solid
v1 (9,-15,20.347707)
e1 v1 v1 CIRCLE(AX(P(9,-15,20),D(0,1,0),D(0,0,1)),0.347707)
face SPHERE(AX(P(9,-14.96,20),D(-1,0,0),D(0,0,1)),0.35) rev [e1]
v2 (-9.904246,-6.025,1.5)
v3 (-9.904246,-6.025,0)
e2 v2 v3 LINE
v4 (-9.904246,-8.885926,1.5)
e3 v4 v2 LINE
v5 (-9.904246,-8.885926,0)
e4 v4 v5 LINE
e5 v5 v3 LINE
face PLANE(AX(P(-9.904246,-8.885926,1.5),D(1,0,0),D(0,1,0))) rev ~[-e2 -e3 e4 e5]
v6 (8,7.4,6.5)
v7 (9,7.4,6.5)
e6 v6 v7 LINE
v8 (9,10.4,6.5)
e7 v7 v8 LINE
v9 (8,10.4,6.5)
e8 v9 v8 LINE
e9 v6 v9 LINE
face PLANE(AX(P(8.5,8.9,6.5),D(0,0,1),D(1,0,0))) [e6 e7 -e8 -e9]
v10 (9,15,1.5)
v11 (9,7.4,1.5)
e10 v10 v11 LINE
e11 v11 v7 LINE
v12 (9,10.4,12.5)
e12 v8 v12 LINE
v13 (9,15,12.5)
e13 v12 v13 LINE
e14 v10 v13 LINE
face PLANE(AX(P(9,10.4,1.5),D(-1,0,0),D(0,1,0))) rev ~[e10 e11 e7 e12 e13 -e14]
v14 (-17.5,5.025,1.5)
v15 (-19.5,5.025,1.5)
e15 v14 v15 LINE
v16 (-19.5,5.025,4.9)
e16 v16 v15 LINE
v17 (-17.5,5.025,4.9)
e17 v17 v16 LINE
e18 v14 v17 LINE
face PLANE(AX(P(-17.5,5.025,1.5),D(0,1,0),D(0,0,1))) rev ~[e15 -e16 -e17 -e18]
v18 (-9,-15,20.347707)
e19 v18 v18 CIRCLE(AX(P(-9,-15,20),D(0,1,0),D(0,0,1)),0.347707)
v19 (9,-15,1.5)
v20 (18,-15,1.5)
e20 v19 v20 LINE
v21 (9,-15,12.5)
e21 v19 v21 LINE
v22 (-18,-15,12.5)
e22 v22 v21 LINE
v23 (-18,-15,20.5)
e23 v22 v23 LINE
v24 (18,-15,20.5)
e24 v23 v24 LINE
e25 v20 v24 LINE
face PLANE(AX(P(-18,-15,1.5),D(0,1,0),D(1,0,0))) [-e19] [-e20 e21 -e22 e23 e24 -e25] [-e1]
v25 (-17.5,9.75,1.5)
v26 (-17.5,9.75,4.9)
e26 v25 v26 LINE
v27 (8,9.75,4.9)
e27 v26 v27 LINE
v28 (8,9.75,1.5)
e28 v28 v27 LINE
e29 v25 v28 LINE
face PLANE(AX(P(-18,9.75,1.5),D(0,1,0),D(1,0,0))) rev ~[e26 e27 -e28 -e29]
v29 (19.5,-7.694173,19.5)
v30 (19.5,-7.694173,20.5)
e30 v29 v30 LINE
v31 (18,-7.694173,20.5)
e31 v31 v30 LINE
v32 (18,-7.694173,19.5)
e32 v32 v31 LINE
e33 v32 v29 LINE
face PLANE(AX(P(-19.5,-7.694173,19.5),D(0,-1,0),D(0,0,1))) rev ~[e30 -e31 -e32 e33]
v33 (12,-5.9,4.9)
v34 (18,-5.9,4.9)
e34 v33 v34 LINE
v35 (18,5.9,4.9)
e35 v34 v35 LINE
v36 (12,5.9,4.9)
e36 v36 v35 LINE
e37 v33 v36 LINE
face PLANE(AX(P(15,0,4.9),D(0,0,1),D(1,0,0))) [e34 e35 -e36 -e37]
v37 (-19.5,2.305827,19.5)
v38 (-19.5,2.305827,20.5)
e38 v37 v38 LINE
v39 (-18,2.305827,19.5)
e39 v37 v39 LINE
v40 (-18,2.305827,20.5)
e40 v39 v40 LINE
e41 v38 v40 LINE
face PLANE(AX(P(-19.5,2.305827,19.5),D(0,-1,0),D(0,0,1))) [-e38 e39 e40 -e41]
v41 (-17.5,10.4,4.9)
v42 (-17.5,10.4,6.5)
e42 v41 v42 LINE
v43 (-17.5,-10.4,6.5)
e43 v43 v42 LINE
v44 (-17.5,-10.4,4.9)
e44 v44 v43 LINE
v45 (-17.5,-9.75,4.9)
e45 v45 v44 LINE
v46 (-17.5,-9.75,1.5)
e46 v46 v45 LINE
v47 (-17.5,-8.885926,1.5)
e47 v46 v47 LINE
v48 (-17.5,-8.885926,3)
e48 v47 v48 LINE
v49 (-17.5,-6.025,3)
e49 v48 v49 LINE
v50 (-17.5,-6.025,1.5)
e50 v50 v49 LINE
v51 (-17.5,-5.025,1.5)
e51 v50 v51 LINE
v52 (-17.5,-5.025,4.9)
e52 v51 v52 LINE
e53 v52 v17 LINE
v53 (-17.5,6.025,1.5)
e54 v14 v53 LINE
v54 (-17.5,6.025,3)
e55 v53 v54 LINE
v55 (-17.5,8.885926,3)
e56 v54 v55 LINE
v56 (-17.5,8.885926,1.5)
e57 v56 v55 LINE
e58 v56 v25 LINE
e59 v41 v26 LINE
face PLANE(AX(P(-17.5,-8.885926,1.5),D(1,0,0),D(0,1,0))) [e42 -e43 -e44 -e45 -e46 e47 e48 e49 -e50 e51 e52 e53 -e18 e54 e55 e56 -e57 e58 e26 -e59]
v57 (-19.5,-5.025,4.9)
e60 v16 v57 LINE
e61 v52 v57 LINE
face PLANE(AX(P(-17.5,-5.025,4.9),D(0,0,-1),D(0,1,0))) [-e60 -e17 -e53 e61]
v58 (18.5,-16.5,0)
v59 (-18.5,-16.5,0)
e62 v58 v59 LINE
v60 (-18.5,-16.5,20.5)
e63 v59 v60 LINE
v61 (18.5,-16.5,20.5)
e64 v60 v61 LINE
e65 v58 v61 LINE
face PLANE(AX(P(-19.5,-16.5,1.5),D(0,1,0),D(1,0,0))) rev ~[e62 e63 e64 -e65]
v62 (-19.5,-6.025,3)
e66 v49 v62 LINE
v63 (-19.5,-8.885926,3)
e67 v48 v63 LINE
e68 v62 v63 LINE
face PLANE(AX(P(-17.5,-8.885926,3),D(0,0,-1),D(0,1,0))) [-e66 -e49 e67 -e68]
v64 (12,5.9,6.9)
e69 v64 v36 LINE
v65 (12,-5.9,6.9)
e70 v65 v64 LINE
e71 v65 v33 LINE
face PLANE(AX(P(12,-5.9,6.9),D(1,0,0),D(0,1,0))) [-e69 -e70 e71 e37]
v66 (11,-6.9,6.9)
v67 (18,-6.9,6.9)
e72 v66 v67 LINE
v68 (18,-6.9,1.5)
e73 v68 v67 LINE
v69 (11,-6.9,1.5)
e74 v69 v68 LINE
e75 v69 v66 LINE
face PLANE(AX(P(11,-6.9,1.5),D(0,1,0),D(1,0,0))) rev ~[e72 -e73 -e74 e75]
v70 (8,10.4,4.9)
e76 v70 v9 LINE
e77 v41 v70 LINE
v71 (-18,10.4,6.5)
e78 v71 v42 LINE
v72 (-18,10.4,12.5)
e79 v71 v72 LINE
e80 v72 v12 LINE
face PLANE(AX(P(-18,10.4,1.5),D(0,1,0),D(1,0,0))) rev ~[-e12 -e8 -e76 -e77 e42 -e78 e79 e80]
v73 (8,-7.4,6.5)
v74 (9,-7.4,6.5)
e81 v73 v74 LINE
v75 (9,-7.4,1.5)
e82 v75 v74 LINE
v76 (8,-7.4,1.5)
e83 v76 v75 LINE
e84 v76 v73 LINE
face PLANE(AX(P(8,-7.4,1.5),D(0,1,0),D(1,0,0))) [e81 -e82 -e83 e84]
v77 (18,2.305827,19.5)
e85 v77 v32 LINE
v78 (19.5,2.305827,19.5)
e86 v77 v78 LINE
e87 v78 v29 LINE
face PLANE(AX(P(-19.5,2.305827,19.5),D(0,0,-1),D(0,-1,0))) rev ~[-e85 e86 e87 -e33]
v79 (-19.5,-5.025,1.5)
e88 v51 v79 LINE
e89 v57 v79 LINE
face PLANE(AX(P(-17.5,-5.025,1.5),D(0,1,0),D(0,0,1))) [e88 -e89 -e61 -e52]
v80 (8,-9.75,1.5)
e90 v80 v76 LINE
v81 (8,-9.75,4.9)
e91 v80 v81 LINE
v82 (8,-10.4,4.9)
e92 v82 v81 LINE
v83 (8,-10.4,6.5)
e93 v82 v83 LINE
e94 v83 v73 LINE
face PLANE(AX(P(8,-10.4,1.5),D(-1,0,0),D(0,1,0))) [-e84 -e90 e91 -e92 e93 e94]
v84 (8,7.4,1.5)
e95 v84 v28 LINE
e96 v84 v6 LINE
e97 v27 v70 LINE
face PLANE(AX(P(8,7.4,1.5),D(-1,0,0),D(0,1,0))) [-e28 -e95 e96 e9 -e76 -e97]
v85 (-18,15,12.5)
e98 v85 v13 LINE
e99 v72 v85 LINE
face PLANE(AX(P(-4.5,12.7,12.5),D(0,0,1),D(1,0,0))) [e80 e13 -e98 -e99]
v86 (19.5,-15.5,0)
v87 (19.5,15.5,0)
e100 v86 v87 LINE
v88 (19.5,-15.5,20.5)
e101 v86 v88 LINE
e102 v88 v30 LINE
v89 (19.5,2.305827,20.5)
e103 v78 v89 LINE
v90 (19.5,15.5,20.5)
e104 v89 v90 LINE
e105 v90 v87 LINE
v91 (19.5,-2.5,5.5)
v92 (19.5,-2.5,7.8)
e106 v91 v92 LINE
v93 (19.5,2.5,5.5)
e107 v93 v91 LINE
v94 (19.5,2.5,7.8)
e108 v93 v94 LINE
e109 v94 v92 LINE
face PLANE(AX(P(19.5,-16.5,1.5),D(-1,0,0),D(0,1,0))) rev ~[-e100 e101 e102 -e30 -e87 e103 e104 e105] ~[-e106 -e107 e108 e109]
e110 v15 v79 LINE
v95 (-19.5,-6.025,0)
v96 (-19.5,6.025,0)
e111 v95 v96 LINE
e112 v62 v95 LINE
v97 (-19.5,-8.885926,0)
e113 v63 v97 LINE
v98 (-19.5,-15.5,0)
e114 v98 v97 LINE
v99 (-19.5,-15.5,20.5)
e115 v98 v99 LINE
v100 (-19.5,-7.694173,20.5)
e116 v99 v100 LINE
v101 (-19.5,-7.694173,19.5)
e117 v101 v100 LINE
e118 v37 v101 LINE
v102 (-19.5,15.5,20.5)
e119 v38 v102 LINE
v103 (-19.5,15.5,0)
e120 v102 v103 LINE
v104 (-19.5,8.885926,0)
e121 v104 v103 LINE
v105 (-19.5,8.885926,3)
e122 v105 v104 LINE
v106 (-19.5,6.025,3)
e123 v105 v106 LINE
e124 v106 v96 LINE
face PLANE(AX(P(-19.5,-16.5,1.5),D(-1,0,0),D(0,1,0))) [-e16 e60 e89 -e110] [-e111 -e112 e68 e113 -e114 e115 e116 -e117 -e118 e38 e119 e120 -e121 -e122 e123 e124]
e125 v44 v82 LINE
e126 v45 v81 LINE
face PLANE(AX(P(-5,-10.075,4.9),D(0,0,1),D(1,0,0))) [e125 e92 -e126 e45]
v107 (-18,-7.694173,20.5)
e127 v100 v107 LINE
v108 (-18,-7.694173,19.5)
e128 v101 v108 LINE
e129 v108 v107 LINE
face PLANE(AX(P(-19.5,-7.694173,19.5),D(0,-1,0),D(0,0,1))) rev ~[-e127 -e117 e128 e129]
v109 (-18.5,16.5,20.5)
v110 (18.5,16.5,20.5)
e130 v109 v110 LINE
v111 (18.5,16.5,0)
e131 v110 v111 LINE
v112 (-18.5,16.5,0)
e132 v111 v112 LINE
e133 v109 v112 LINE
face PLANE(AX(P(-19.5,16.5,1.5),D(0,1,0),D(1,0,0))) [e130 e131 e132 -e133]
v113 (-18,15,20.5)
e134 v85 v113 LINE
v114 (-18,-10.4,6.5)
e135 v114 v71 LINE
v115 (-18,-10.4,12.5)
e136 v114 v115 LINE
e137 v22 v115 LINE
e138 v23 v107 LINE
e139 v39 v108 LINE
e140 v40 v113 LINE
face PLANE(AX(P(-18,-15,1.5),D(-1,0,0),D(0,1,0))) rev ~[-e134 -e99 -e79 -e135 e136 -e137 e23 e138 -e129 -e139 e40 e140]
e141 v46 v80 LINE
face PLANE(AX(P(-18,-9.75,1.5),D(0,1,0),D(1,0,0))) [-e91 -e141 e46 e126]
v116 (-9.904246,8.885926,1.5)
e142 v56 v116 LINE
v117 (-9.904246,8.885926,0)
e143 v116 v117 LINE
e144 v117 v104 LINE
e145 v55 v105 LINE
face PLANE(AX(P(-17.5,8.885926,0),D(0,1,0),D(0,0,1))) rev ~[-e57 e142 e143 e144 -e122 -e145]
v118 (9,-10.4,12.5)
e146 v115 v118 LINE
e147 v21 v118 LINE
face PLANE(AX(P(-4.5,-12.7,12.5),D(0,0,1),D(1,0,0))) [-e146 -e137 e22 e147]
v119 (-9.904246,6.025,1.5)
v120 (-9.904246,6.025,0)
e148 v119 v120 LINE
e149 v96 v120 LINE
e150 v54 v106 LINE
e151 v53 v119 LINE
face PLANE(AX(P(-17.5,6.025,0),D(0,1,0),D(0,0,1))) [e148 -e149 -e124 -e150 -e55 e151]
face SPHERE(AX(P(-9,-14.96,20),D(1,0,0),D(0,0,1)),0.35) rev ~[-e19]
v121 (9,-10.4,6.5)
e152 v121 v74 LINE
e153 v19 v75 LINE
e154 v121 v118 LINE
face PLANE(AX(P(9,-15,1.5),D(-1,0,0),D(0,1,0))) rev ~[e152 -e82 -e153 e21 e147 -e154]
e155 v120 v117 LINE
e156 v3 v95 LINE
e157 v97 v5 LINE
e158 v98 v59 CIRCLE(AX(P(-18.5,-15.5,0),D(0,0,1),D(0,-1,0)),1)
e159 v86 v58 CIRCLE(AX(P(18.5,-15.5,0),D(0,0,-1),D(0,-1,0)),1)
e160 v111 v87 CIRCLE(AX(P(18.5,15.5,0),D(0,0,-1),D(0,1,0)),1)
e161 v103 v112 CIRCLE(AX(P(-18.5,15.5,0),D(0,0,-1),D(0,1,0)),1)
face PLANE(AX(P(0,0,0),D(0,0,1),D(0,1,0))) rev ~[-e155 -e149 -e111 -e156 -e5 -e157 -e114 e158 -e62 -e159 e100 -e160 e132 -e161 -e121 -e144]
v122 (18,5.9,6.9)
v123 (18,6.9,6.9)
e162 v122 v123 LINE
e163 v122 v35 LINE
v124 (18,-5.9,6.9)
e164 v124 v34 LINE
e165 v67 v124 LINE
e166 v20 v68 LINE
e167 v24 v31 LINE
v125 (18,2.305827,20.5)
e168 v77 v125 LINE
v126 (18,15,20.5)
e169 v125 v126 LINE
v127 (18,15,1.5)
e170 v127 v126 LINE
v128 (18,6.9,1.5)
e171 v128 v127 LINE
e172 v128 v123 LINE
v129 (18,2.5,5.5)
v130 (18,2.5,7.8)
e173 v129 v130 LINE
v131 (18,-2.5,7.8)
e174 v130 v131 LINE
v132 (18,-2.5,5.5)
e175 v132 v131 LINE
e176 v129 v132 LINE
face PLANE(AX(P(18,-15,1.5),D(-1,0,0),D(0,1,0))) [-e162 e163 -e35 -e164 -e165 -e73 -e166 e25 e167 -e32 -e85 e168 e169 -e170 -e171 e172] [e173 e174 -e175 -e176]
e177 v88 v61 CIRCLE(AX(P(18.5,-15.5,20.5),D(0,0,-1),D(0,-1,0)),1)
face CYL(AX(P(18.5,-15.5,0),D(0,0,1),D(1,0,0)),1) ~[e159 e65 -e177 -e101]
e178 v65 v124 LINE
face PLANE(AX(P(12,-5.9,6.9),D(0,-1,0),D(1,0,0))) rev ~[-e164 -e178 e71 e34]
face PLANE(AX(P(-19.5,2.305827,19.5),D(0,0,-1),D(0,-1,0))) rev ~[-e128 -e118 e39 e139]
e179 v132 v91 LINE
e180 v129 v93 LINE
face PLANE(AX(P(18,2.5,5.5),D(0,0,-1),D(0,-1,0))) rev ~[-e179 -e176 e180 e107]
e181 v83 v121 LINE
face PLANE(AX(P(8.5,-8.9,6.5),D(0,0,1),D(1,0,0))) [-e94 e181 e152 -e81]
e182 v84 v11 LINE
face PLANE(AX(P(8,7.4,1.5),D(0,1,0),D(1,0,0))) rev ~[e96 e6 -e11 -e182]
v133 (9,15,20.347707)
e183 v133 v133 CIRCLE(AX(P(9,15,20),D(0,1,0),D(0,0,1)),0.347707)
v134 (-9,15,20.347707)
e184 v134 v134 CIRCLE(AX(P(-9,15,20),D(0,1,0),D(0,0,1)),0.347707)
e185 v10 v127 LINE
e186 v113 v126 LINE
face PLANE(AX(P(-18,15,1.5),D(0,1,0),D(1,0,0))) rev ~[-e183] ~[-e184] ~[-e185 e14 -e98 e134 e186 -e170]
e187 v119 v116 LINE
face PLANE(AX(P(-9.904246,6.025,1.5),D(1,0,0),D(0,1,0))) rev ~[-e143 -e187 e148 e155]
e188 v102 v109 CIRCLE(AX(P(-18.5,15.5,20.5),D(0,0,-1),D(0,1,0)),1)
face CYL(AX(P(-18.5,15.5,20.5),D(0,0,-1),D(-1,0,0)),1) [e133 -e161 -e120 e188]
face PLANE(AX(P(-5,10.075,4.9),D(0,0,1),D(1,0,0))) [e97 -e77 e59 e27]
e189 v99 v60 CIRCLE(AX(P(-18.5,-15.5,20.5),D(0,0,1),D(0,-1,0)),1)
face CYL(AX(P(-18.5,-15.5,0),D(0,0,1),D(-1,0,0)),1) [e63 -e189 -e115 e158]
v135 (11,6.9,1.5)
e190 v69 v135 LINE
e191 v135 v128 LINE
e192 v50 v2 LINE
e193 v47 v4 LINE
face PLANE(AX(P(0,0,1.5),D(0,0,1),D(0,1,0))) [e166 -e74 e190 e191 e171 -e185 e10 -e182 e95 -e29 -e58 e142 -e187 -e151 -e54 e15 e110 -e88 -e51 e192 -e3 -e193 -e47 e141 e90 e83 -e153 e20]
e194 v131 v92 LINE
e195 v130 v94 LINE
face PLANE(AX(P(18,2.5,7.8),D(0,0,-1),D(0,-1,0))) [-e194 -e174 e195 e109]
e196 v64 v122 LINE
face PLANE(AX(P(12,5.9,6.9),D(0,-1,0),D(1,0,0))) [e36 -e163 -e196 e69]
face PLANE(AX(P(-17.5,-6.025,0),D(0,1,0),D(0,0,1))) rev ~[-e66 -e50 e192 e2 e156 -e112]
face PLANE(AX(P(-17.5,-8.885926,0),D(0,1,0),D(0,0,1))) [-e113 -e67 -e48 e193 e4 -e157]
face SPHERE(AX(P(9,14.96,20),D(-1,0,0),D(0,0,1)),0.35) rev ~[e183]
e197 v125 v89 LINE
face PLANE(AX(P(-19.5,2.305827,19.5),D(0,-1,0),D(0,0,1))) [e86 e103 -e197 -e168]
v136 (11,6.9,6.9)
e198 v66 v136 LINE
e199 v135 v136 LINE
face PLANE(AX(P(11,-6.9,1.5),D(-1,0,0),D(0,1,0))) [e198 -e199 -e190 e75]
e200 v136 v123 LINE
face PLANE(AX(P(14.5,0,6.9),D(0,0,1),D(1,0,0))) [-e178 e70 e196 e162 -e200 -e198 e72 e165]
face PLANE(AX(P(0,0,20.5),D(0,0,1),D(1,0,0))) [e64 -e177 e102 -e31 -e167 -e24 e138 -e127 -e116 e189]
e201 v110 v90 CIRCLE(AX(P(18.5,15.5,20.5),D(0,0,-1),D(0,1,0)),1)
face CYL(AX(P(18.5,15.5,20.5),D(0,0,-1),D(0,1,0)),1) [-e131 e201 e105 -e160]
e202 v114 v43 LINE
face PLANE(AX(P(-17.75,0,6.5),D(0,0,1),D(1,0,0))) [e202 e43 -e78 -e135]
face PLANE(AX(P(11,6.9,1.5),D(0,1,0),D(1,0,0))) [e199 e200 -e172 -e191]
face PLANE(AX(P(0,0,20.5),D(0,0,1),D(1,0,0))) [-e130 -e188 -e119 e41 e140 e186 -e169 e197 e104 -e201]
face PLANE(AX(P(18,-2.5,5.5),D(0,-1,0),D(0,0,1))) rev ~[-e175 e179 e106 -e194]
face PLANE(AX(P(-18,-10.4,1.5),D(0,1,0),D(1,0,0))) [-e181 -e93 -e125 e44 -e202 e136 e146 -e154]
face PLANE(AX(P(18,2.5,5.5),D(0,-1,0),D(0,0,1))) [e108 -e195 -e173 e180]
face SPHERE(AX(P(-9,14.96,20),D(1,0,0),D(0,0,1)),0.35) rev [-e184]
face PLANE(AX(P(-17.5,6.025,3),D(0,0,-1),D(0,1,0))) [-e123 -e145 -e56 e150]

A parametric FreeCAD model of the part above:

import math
import FreeCAD as App
import Part
import Sketcher

V = App.Vector


def edges_at(feature, points):
    """Names of the edges that pass closest to the given points."""
    edges = feature.Shape.Edges
    near = lambda p: min(range(len(edges)), key=lambda i: edges[i].distToShape(Part.Vertex(*p))[0])
    return sorted({f"Edge{near(p) + 1}" for p in points})

doc = App.newDocument("Part")
params = doc.addObject("Spreadsheet::Sheet", "Params")
for row, (alias, value) in enumerate([
    ("sketch1_width", "39 mm"),
    ("sketch1_height", "33 mm"),
    ("pad1_length", "1.5 mm"),
    ("sketch2_width", "39 mm"),
    ("sketch2_width2", "36 mm"),
    ("sketch2_height", "33 mm"),
    ("sketch2_height2", "30 mm"),
    ("pad2_length", "19 mm"),
    ("sketch3_width", "27 mm"),
    ("sketch3_height", "4.6 mm"),
    ("pad3_length", "11 mm"),
    ("sketch4_width", "26 mm"),
    ("sketch4_height", "0.65 mm"),
    ("pad4_length", "3.4 mm"),
    ("sketch5_width", "1 mm"),
    ("sketch5_height", "3 mm"),
    ("sketch5_width2", "0.5 mm"),
    ("sketch5_height2", "20.8 mm"),
    ("pad5_length", "5 mm"),
    ("sketch6_height", "3.4 mm"),
    ("sketch6_width", "10.05 mm"),
    ("sketch7_width", "7 mm"),
    ("sketch7_height", "13.8 mm"),
    ("pad6_length", "5.4 mm"),
    ("sketch8_width", "6 mm"),
    ("sketch8_height", "11.8 mm"),
    ("pocket2_length", "2 mm"),
    ("sketch9_width", "5 mm"),
    ("sketch9_height", "2.3 mm"),
    ("sketch10_radius", "0.35 mm"),
    ("groove_angle", "180 deg"),
    ("sketch11_radius", "0.35 mm"),
    ("groove2_angle", "180 deg"),
    ("sketch12_width", "10 mm"),
    ("sketch12_height", "1 mm"),
    ("fillet_radius", "1 mm"),
    ("sketch14_height", "3 mm"),
], start=1):
    params.set(f"A{row}", alias)
    params.set(f"B{row}", "=" + value)
    params.setAlias(f"B{row}", alias)

body = doc.addObject("PartDesign::Body", "Body")

sketch1 = body.newObject("Sketcher::SketchObject", "Sketch")
sketch1.AttachmentSupport = (doc.getObject("XY_Plane"), [""])
sketch1.MapMode = "FlatFace"
sketch1.addGeometry([
    Part.LineSegment(V(-20, -16, 0), V(20, -16, 0)),
    Part.LineSegment(V(20, -16, 0), V(20, 16, 0)),
    Part.LineSegment(V(20, 16, 0), V(-20, 16, 0)),
    Part.LineSegment(V(-20, 16, 0), V(-20, -16, 0)),
], False)
sketch1.addConstraint([
    Sketcher.Constraint("Coincident", 0, 2, 1, 1),
    Sketcher.Constraint("Coincident", 1, 2, 2, 1),
    Sketcher.Constraint("Coincident", 2, 2, 3, 1),
    Sketcher.Constraint("Coincident", 3, 2, 0, 1),
    Sketcher.Constraint("Horizontal", 0),
    Sketcher.Constraint("Vertical", 1),
    Sketcher.Constraint("Horizontal", 2),
    Sketcher.Constraint("Vertical", 3),
    Sketcher.Constraint("Symmetric", 0, 2, 2, 2, -1, 1),
    Sketcher.Constraint("DistanceX", 0, 1, 0, 2, 39.0),
    Sketcher.Constraint("DistanceY", 1, 1, 1, 2, 33.0),
])
sketch1.setExpression("Constraints[9]", "Params.sketch1_width")
sketch1.setExpression("Constraints[10]", "Params.sketch1_height")
pad1 = body.newObject("PartDesign::Pad", "Pad")
pad1.Profile = sketch1
pad1.setExpression("Length", "Params.pad1_length")

sketch2 = body.newObject("Sketcher::SketchObject", "Sketch001")
sketch2.AttachmentSupport = (doc.getObject("XY_Plane"), [""])
sketch2.MapMode = "FlatFace"
sketch2.AttachmentOffset = App.Placement(V(0, 0, 1.5), App.Rotation())
sketch2.addGeometry([
    Part.LineSegment(V(-20, 16, 0), V(-20, -16, 0)),
    Part.LineSegment(V(-20, -16, 0), V(20, -16, 0)),
    Part.LineSegment(V(20, -16, 0), V(20, 16, 0)),
    Part.LineSegment(V(20, 16, 0), V(-20, 16, 0)),
    Part.LineSegment(V(18, -15, 0), V(-18, -15, 0)),
    Part.LineSegment(V(-18, -15, 0), V(-18, 15, 0)),
    Part.LineSegment(V(-18, 15, 0), V(18, 15, 0)),
    Part.LineSegment(V(18, 15, 0), V(18, -15, 0)),
], False)
sketch2.addConstraint([
    Sketcher.Constraint("Coincident", 0, 2, 1, 1),
    Sketcher.Constraint("Coincident", 1, 2, 2, 1),
    Sketcher.Constraint("Coincident", 2, 2, 3, 1),
    Sketcher.Constraint("Coincident", 3, 2, 0, 1),
    Sketcher.Constraint("Coincident", 4, 2, 5, 1),
    Sketcher.Constraint("Coincident", 5, 2, 6, 1),
    Sketcher.Constraint("Coincident", 6, 2, 7, 1),
    Sketcher.Constraint("Coincident", 7, 2, 4, 1),
    Sketcher.Constraint("Vertical", 0),
    Sketcher.Constraint("Horizontal", 1),
    Sketcher.Constraint("Vertical", 2),
    Sketcher.Constraint("Horizontal", 3),
    Sketcher.Constraint("Horizontal", 4),
    Sketcher.Constraint("Vertical", 5),
    Sketcher.Constraint("Horizontal", 6),
    Sketcher.Constraint("Vertical", 7),
    Sketcher.Constraint("Symmetric", 0, 2, 2, 2, -1, 1),
    Sketcher.Constraint("Symmetric", 4, 2, 6, 2, -1, 1),
    Sketcher.Constraint("DistanceX", 1, 1, 1, 2, 39.0),
    Sketcher.Constraint("DistanceX", 4, 2, 4, 1, 36.0),
    Sketcher.Constraint("DistanceY", 0, 2, 0, 1, 33.0),
    Sketcher.Constraint("DistanceY", 5, 1, 5, 2, 30.0),
])
sketch2.setExpression("Constraints[18]", "Params.sketch2_width")
sketch2.setExpression("Constraints[19]", "Params.sketch2_width2")
sketch2.setExpression("Constraints[20]", "Params.sketch2_height")
sketch2.setExpression("Constraints[21]", "Params.sketch2_height2")
pad2 = body.newObject("PartDesign::Pad", "Pad001")
pad2.Profile = sketch2
pad2.setExpression("Length", "Params.pad2_length")

sketch3 = body.newObject("Sketcher::SketchObject", "Sketch002")
sketch3.AttachmentSupport = (doc.getObject("XY_Plane"), [""])
sketch3.MapMode = "FlatFace"
sketch3.AttachmentOffset = App.Placement(V(0, 0, 1.5), App.Rotation())
sketch3.addGeometry([
    Part.LineSegment(V(-18, 15, 0), V(-18, 10.4, 0)),
    Part.LineSegment(V(-18, 10.4, 0), V(9, 10.4, 0)),
    Part.LineSegment(V(9, 10.4, 0), V(9, 15, 0)),
    Part.LineSegment(V(9, 15, 0), V(-18, 15, 0)),
    Part.LineSegment(V(-18, -10.4, 0), V(-18, -15, 0)),
    Part.LineSegment(V(-18, -15, 0), V(9, -15, 0)),
    Part.LineSegment(V(9, -15, 0), V(9, -10.4, 0)),
    Part.LineSegment(V(9, -10.4, 0), V(-18, -10.4, 0)),
], False)
sketch3.addConstraint([
    Sketcher.Constraint("Coincident", 0, 2, 1, 1),
    Sketcher.Constraint("Coincident", 1, 2, 2, 1),
    Sketcher.Constraint("Coincident", 2, 2, 3, 1),
    Sketcher.Constraint("Coincident", 3, 2, 0, 1),
    Sketcher.Constraint("Coincident", 4, 2, 5, 1),
    Sketcher.Constraint("Coincident", 5, 2, 6, 1),
    Sketcher.Constraint("Coincident", 6, 2, 7, 1),
    Sketcher.Constraint("Coincident", 7, 2, 4, 1),
    Sketcher.Constraint("Vertical", 0),
    Sketcher.Constraint("Horizontal", 1),
    Sketcher.Constraint("Vertical", 2),
    Sketcher.Constraint("Horizontal", 3),
    Sketcher.Constraint("Vertical", 4),
    Sketcher.Constraint("Horizontal", 5),
    Sketcher.Constraint("Vertical", 6),
    Sketcher.Constraint("Horizontal", 7),
    Sketcher.Constraint("Symmetric", 3, 2, 4, 2, -1),
    Sketcher.Constraint("Symmetric", 1, 2, 6, 2, -1),
    Sketcher.Constraint("DistanceX", 1, 1, 1, 2, 27.0),
    Sketcher.Constraint("DistanceY", 0, 2, 0, 1, 4.6),
    Sketcher.Constraint("DistanceX", 0, 2, -1, 1, 18.0),
    Sketcher.Constraint("DistanceY", -1, 1, 2, 2, 15.0),
])
sketch3.setExpression("Constraints[18]", "Params.sketch3_width")
sketch3.setExpression("Constraints[19]", "Params.sketch3_height")
pad3 = body.newObject("PartDesign::Pad", "Pad002")
pad3.Profile = sketch3
pad3.setExpression("Length", "Params.pad3_length")

sketch4 = body.newObject("Sketcher::SketchObject", "Sketch003")
sketch4.AttachmentSupport = (doc.getObject("XY_Plane"), [""])
sketch4.MapMode = "FlatFace"
sketch4.AttachmentOffset = App.Placement(V(0, 0, 1.5), App.Rotation())
sketch4.addGeometry([
    Part.LineSegment(V(-18, 10.4, 0), V(-18, 9.8, 0)),
    Part.LineSegment(V(-18, 9.8, 0), V(8, 9.8, 0)),
    Part.LineSegment(V(8, 9.8, 0), V(8, 10.4, 0)),
    Part.LineSegment(V(8, 10.4, 0), V(-18, 10.4, 0)),
    Part.LineSegment(V(-18, -9.8, 0), V(-18, -10.4, 0)),
    Part.LineSegment(V(-18, -10.4, 0), V(8, -10.4, 0)),
    Part.LineSegment(V(8, -10.4, 0), V(8, -9.8, 0)),
    Part.LineSegment(V(8, -9.8, 0), V(-18, -9.8, 0)),
], False)
sketch4.addConstraint([
    Sketcher.Constraint("Coincident", 0, 2, 1, 1),
    Sketcher.Constraint("Coincident", 1, 2, 2, 1),
    Sketcher.Constraint("Coincident", 2, 2, 3, 1),
    Sketcher.Constraint("Coincident", 3, 2, 0, 1),
    Sketcher.Constraint("Coincident", 4, 2, 5, 1),
    Sketcher.Constraint("Coincident", 5, 2, 6, 1),
    Sketcher.Constraint("Coincident", 6, 2, 7, 1),
    Sketcher.Constraint("Coincident", 7, 2, 4, 1),
    Sketcher.Constraint("Vertical", 0),
    Sketcher.Constraint("Horizontal", 1),
    Sketcher.Constraint("Vertical", 2),
    Sketcher.Constraint("Horizontal", 3),
    Sketcher.Constraint("Vertical", 4),
    Sketcher.Constraint("Horizontal", 5),
    Sketcher.Constraint("Vertical", 6),
    Sketcher.Constraint("Horizontal", 7),
    Sketcher.Constraint("Symmetric", 3, 2, 4, 2, -1),
    Sketcher.Constraint("Symmetric", 1, 2, 6, 2, -1),
    Sketcher.Constraint("DistanceX", 1, 1, 1, 2, 26.0),
    Sketcher.Constraint("DistanceX", 0, 2, -1, 1, 18.0),
    Sketcher.Constraint("DistanceY", 0, 2, 0, 1, 0.65),
    Sketcher.Constraint("DistanceY", -1, 1, 2, 2, 10.4),
])
sketch4.setExpression("Constraints[18]", "Params.sketch4_width")
sketch4.setExpression("Constraints[20]", "Params.sketch4_height")
pad4 = body.newObject("PartDesign::Pad", "Pad003")
pad4.Profile = sketch4
pad4.setExpression("Length", "Params.pad4_length")

sketch5 = body.newObject("Sketcher::SketchObject", "Sketch004")
sketch5.AttachmentSupport = (doc.getObject("XY_Plane"), [""])
sketch5.MapMode = "FlatFace"
sketch5.AttachmentOffset = App.Placement(V(0, 0, 1.5), App.Rotation())
sketch5.addGeometry([
    Part.LineSegment(V(-18, 10.4, 0), V(-18, -10.4, 0)),
    Part.LineSegment(V(-18, -10.4, 0), V(-17.5, -10.4, 0)),
    Part.LineSegment(V(-17.5, -10.4, 0), V(-17.5, 10.4, 0)),
    Part.LineSegment(V(-17.5, 10.4, 0), V(-18, 10.4, 0)),
    Part.LineSegment(V(8, 10.4, 0), V(8, 7.4, 0)),
    Part.LineSegment(V(8, 7.4, 0), V(9, 7.4, 0)),
    Part.LineSegment(V(9, 7.4, 0), V(9, 10.4, 0)),
    Part.LineSegment(V(9, 10.4, 0), V(8, 10.4, 0)),
    Part.LineSegment(V(8, -7.4, 0), V(8, -10.4, 0)),
    Part.LineSegment(V(8, -10.4, 0), V(9, -10.4, 0)),
    Part.LineSegment(V(9, -10.4, 0), V(9, -7.4, 0)),
    Part.LineSegment(V(9, -7.4, 0), V(8, -7.4, 0)),
], False)
sketch5.addConstraint([
    Sketcher.Constraint("Coincident", 0, 2, 1, 1),
    Sketcher.Constraint("Coincident", 1, 2, 2, 1),
    Sketcher.Constraint("Coincident", 2, 2, 3, 1),
    Sketcher.Constraint("Coincident", 3, 2, 0, 1),
    Sketcher.Constraint("Coincident", 4, 2, 5, 1),
    Sketcher.Constraint("Coincident", 5, 2, 6, 1),
    Sketcher.Constraint("Coincident", 6, 2, 7, 1),
    Sketcher.Constraint("Coincident", 7, 2, 4, 1),
    Sketcher.Constraint("Coincident", 8, 2, 9, 1),
    Sketcher.Constraint("Coincident", 9, 2, 10, 1),
    Sketcher.Constraint("Coincident", 10, 2, 11, 1),
    Sketcher.Constraint("Coincident", 11, 2, 8, 1),
    Sketcher.Constraint("Vertical", 0),
    Sketcher.Constraint("Horizontal", 1),
    Sketcher.Constraint("Vertical", 2),
    Sketcher.Constraint("Horizontal", 3),
    Sketcher.Constraint("Vertical", 4),
    Sketcher.Constraint("Horizontal", 5),
    Sketcher.Constraint("Vertical", 6),
    Sketcher.Constraint("Horizontal", 7),
    Sketcher.Constraint("Vertical", 8),
    Sketcher.Constraint("Horizontal", 9),
    Sketcher.Constraint("Vertical", 10),
    Sketcher.Constraint("Horizontal", 11),
    Sketcher.Constraint("Symmetric", 7, 2, 8, 2, -1),
    Sketcher.Constraint("Symmetric", 5, 2, 10, 2, -1),
    Sketcher.Constraint("Horizontal", 3, 2, 6, 2),
    Sketcher.Constraint("Horizontal", 1, 2, 8, 2),
    Sketcher.Constraint("DistanceX", 5, 1, 5, 2, 1.0),
    Sketcher.Constraint("DistanceY", 4, 2, 4, 1, 3.0),
    Sketcher.Constraint("DistanceX", 1, 1, 1, 2, 0.5),
    Sketcher.Constraint("DistanceY", 0, 2, 0, 1, 20.8),
    Sketcher.Constraint("DistanceX", 0, 2, -1, 1, 18.0),
    Sketcher.Constraint("DistanceX", -1, 1, 4, 2, 8.0),
])
sketch5.setExpression("Constraints[28]", "Params.sketch5_width")
sketch5.setExpression("Constraints[29]", "Params.sketch5_height")
sketch5.setExpression("Constraints[30]", "Params.sketch5_width2")
sketch5.setExpression("Constraints[31]", "Params.sketch5_height2")
pad5 = body.newObject("PartDesign::Pad", "Pad004")
pad5.Profile = sketch5
pad5.setExpression("Length", "Params.pad5_length")

sketch6 = body.newObject("Sketcher::SketchObject", "Sketch005")
sketch6.AttachmentSupport = (doc.getObject("YZ_Plane"), [""])
sketch6.MapMode = "FlatFace"
sketch6.AttachmentOffset = App.Placement(V(0, 0, -17.5), App.Rotation())
sketch6.addGeometry([
    Part.LineSegment(V(-5, 4.9, 0), V(-5, 1.5, 0)),
    Part.LineSegment(V(-5, 1.5, 0), V(5, 1.5, 0)),
    Part.LineSegment(V(5, 1.5, 0), V(5, 4.9, 0)),
    Part.LineSegment(V(5, 4.9, 0), V(-5, 4.9, 0)),
], False)
sketch6.addConstraint([
    Sketcher.Constraint("Coincident", 0, 2, 1, 1),
    Sketcher.Constraint("Coincident", 1, 2, 2, 1),
    Sketcher.Constraint("Coincident", 2, 2, 3, 1),
    Sketcher.Constraint("Coincident", 3, 2, 0, 1),
    Sketcher.Constraint("Vertical", 0),
    Sketcher.Constraint("Horizontal", 1),
    Sketcher.Constraint("Vertical", 2),
    Sketcher.Constraint("Horizontal", 3),
    Sketcher.Constraint("DistanceY", 0, 2, 0, 1, 3.4),
    Sketcher.Constraint("DistanceX", 1, 1, 1, 2, 10.05),
    Sketcher.Constraint("DistanceY", -1, 1, 0, 2, 1.5),
    Sketcher.Constraint("DistanceX", 0, 2, -1, 1, 5.025),
])
sketch6.setExpression("Constraints[8]", "Params.sketch6_height")
sketch6.setExpression("Constraints[9]", "Params.sketch6_width")
pocket1 = body.newObject("PartDesign::Pocket", "Pocket")
pocket1.Profile = sketch6
pocket1.Type = "ThroughAll"

sketch7 = body.newObject("Sketcher::SketchObject", "Sketch006")
sketch7.AttachmentSupport = (doc.getObject("XY_Plane"), [""])
sketch7.MapMode = "FlatFace"
sketch7.AttachmentOffset = App.Placement(V(0, 0, 1.5), App.Rotation())
sketch7.addGeometry([
    Part.LineSegment(V(11, 7, 0), V(11, -7, 0)),
    Part.LineSegment(V(11, -7, 0), V(18, -7, 0)),
    Part.LineSegment(V(18, -7, 0), V(18, 7, 0)),
    Part.LineSegment(V(18, 7, 0), V(11, 7, 0)),
], False)
sketch7.addConstraint([
    Sketcher.Constraint("Coincident", 0, 2, 1, 1),
    Sketcher.Constraint("Coincident", 1, 2, 2, 1),
    Sketcher.Constraint("Coincident", 2, 2, 3, 1),
    Sketcher.Constraint("Coincident", 3, 2, 0, 1),
    Sketcher.Constraint("Vertical", 0),
    Sketcher.Constraint("Horizontal", 1),
    Sketcher.Constraint("Vertical", 2),
    Sketcher.Constraint("Horizontal", 3),
    Sketcher.Constraint("DistanceX", 1, 1, 1, 2, 7.0),
    Sketcher.Constraint("DistanceY", 0, 2, 0, 1, 13.8),
    Sketcher.Constraint("DistanceX", -1, 1, 0, 2, 11.0),
    Sketcher.Constraint("DistanceY", 0, 2, -1, 1, 6.9),
])
sketch7.setExpression("Constraints[8]", "Params.sketch7_width")
sketch7.setExpression("Constraints[9]", "Params.sketch7_height")
pad6 = body.newObject("PartDesign::Pad", "Pad005")
pad6.Profile = sketch7
pad6.setExpression("Length", "Params.pad6_length")

sketch8 = body.newObject("Sketcher::SketchObject", "Sketch007")
sketch8.AttachmentSupport = (doc.getObject("XY_Plane"), [""])
sketch8.MapMode = "FlatFace"
sketch8.AttachmentOffset = App.Placement(V(0, 0, 6.9), App.Rotation())
sketch8.addGeometry([
    Part.LineSegment(V(12, 6, 0), V(12, -6, 0)),
    Part.LineSegment(V(12, -6, 0), V(18, -6, 0)),
    Part.LineSegment(V(18, -6, 0), V(18, 6, 0)),
    Part.LineSegment(V(18, 6, 0), V(12, 6, 0)),
], False)
sketch8.addConstraint([
    Sketcher.Constraint("Coincident", 0, 2, 1, 1),
    Sketcher.Constraint("Coincident", 1, 2, 2, 1),
    Sketcher.Constraint("Coincident", 2, 2, 3, 1),
    Sketcher.Constraint("Coincident", 3, 2, 0, 1),
    Sketcher.Constraint("Vertical", 0),
    Sketcher.Constraint("Horizontal", 1),
    Sketcher.Constraint("Vertical", 2),
    Sketcher.Constraint("Horizontal", 3),
    Sketcher.Constraint("DistanceX", 1, 1, 1, 2, 6.0),
    Sketcher.Constraint("DistanceY", 0, 2, 0, 1, 11.8),
    Sketcher.Constraint("DistanceX", -1, 1, 0, 2, 12.0),
    Sketcher.Constraint("DistanceY", 0, 2, -1, 1, 5.9),
])
sketch8.setExpression("Constraints[8]", "Params.sketch8_width")
sketch8.setExpression("Constraints[9]", "Params.sketch8_height")
pocket2 = body.newObject("PartDesign::Pocket", "Pocket001")
pocket2.Profile = sketch8
pocket2.setExpression("Length", "Params.pocket2_length")

sketch9 = body.newObject("Sketcher::SketchObject", "Sketch008")
sketch9.AttachmentSupport = (doc.getObject("YZ_Plane"), [""])
sketch9.MapMode = "FlatFace"
sketch9.AttachmentOffset = App.Placement(V(0, 0, 18), App.Rotation())
sketch9.addGeometry([
    Part.LineSegment(V(2.5, 7.8, 0), V(2.5, 5.5, 0)),
    Part.LineSegment(V(2.5, 5.5, 0), V(-2.5, 5.5, 0)),
    Part.LineSegment(V(-2.5, 5.5, 0), V(-2.5, 7.8, 0)),
    Part.LineSegment(V(-2.5, 7.8, 0), V(2.5, 7.8, 0)),
], False)
sketch9.addConstraint([
    Sketcher.Constraint("Coincident", 0, 2, 1, 1),
    Sketcher.Constraint("Coincident", 1, 2, 2, 1),
    Sketcher.Constraint("Coincident", 2, 2, 3, 1),
    Sketcher.Constraint("Coincident", 3, 2, 0, 1),
    Sketcher.Constraint("Vertical", 0),
    Sketcher.Constraint("Horizontal", 1),
    Sketcher.Constraint("Vertical", 2),
    Sketcher.Constraint("Horizontal", 3),
    Sketcher.Constraint("DistanceX", 1, 2, 1, 1, 5.0),
    Sketcher.Constraint("DistanceY", 0, 2, 0, 1, 2.3),
    Sketcher.Constraint("DistanceX", -1, 1, 0, 2, 2.5),
    Sketcher.Constraint("DistanceY", -1, 1, 0, 2, 5.5),
])
sketch9.setExpression("Constraints[8]", "Params.sketch9_width")
sketch9.setExpression("Constraints[9]", "Params.sketch9_height")
pocket3 = body.newObject("PartDesign::Pocket", "Pocket002")
pocket3.Profile = sketch9
pocket3.Type = "ThroughAll"
pocket3.Reversed = True

sketch10 = body.newObject("Sketcher::SketchObject", "Sketch009")
sketch10.AttachmentSupport = (doc.getObject("XZ_Plane"), [""])
sketch10.MapMode = "FlatFace"
sketch10.AttachmentOffset = App.Placement(V(0, 0, -14.96), App.Rotation())
sketch10.addGeometry([
    Part.LineSegment(V(-9.35, 20, 0), V(-8.65, 20, 0)),
    Part.ArcOfCircle(Part.Circle(V(-9, 20, 0), V(0, 0, 1), 0.35), math.radians(0), math.radians(180)),
], False)
sketch10.addGeometry(Part.LineSegment(V(-8.65, 20, 0), V(-9.35, 20, 0)), True)
sketch10.addConstraint([
    Sketcher.Constraint("Coincident", 0, 1, 1, 2),
    Sketcher.Constraint("Coincident", 1, 1, 0, 2),
    Sketcher.Constraint("Horizontal", 0),
    Sketcher.Constraint("Horizontal", 2),
    Sketcher.Constraint("Coincident", 2, 1, 1, 1),
    Sketcher.Constraint("Horizontal", 1, 3, 0, 1),
    Sketcher.Constraint("Equal", 0, 2),
    Sketcher.Constraint("Radius", 1, 0.35),
    Sketcher.Constraint("DistanceX", 1, 3, -1, 1, 9.0),
    Sketcher.Constraint("DistanceY", -1, 1, 1, 3, 20.0),
])
sketch10.setExpression("Constraints[7]", "Params.sketch10_radius")
groove = body.newObject("PartDesign::Groove", "Groove")
groove.Profile = sketch10
groove.ReferenceAxis = (sketch10, ["Axis0"])
groove.setExpression("Angle", "Params.groove_angle")
doc.recompute()

mirrored = body.newObject("PartDesign::Mirrored", "Mirrored")
mirrored.Originals = [groove]
mirrored.MirrorPlane = (doc.getObject("XZ_Plane"), [""])
body.Tip = mirrored
doc.recompute()

mirrored2 = body.newObject("PartDesign::Mirrored", "Mirrored001")
mirrored2.Originals = [groove]
mirrored2.MirrorPlane = (doc.getObject("YZ_Plane"), [""])
body.Tip = mirrored2

sketch11 = body.newObject("Sketcher::SketchObject", "Sketch010")
sketch11.AttachmentSupport = (doc.getObject("XZ_Plane"), [""])
sketch11.MapMode = "FlatFace"
sketch11.AttachmentOffset = App.Placement(V(0, 0, 14.96), App.Rotation())
sketch11.addGeometry([
    Part.LineSegment(V(9.35, 20, 0), V(8.65, 20, 0)),
    Part.ArcOfCircle(Part.Circle(V(9, 20, 0), V(0, 0, 1), 0.35), math.radians(0), math.radians(180)),
], False)
sketch11.addGeometry(Part.LineSegment(V(8.65, 20, 0), V(9.35, 20, 0)), True)
sketch11.addConstraint([
    Sketcher.Constraint("Coincident", 0, 1, 1, 1),
    Sketcher.Constraint("Coincident", 1, 2, 0, 2),
    Sketcher.Constraint("Horizontal", 0),
    Sketcher.Constraint("Horizontal", 2),
    Sketcher.Constraint("Coincident", 2, 1, 1, 2),
    Sketcher.Constraint("Horizontal", 1, 3, 0, 1),
    Sketcher.Constraint("Equal", 0, 2),
    Sketcher.Constraint("Radius", 1, 0.35),
    Sketcher.Constraint("DistanceX", -1, 1, 1, 3, 9.0),
    Sketcher.Constraint("DistanceY", -1, 1, 1, 3, 20.0),
])
sketch11.setExpression("Constraints[7]", "Params.sketch11_radius")
groove2 = body.newObject("PartDesign::Groove", "Groove001")
groove2.Profile = sketch11
groove2.ReferenceAxis = (sketch11, ["Axis0"])
groove2.setExpression("Angle", "Params.groove2_angle")

sketch12 = body.newObject("Sketcher::SketchObject", "Sketch011")
sketch12.AttachmentSupport = (doc.getObject("YZ_Plane"), [""])
sketch12.MapMode = "FlatFace"
sketch12.AttachmentOffset = App.Placement(V(0, 0, -19.5), App.Rotation())
sketch12.addGeometry([
    Part.LineSegment(V(2.3, 20.5, 0), V(2.3, 19.5, 0)),
    Part.LineSegment(V(2.3, 19.5, 0), V(-7.7, 19.5, 0)),
    Part.LineSegment(V(-7.7, 19.5, 0), V(-7.7, 20.5, 0)),
    Part.LineSegment(V(-7.7, 20.5, 0), V(2.3, 20.5, 0)),
], False)
sketch12.addConstraint([
    Sketcher.Constraint("Coincident", 0, 2, 1, 1),
    Sketcher.Constraint("Coincident", 1, 2, 2, 1),
    Sketcher.Constraint("Coincident", 2, 2, 3, 1),
    Sketcher.Constraint("Coincident", 3, 2, 0, 1),
    Sketcher.Constraint("Vertical", 0),
    Sketcher.Constraint("Horizontal", 1),
    Sketcher.Constraint("Vertical", 2),
    Sketcher.Constraint("Horizontal", 3),
    Sketcher.Constraint("DistanceX", 1, 2, 1, 1, 10.0),
    Sketcher.Constraint("DistanceY", 0, 2, 0, 1, 1.0),
    Sketcher.Constraint("DistanceY", -1, 1, 0, 2, 19.5),
    Sketcher.Constraint("DistanceX", -1, 1, 0, 2, 2.305827),
])
sketch12.setExpression("Constraints[8]", "Params.sketch12_width")
sketch12.setExpression("Constraints[9]", "Params.sketch12_height")
pocket4 = body.newObject("PartDesign::Pocket", "Pocket003")
pocket4.Profile = sketch12
pocket4.Type = "ThroughAll"
pocket4.Reversed = True
doc.recompute()

fillet = body.newObject("PartDesign::Fillet", "Fillet")
fillet.Base = (pocket4, edges_at(pocket4, [
    (-19.5, -16.5, 10.25),
    (-19.5, 16.5, 10.25),
    (19.5, 16.5, 10.25),
    (19.5, -16.5, 10.25),
]))
fillet.setExpression("Radius", "Params.fillet_radius")

sketch13 = body.newObject("Sketcher::SketchObject", "Sketch012")
sketch13.AttachmentSupport = (doc.getObject("XY_Plane"), [""])
sketch13.MapMode = "FlatFace"
sketch13.AttachmentOffset = App.Placement(V(0, 0, 1.5), App.Rotation())
sketch13.addGeometry([
    Part.LineSegment(V(-17.5, 8.9, 0), V(-17.5, 6, 0)),
    Part.LineSegment(V(-17.5, 6, 0), V(-9.9, 6, 0)),
    Part.LineSegment(V(-9.9, 6, 0), V(-9.9, 8.9, 0)),
    Part.LineSegment(V(-9.9, 8.9, 0), V(-17.5, 8.9, 0)),
    Part.LineSegment(V(-17.5, -6, 0), V(-17.5, -8.9, 0)),
    Part.LineSegment(V(-17.5, -8.9, 0), V(-9.9, -8.9, 0)),
    Part.LineSegment(V(-9.9, -8.9, 0), V(-9.9, -6, 0)),
    Part.LineSegment(V(-9.9, -6, 0), V(-17.5, -6, 0)),
], False)
sketch13.addConstraint([
    Sketcher.Constraint("Coincident", 0, 2, 1, 1),
    Sketcher.Constraint("Coincident", 1, 2, 2, 1),
    Sketcher.Constraint("Coincident", 2, 2, 3, 1),
    Sketcher.Constraint("Coincident", 3, 2, 0, 1),
    Sketcher.Constraint("Coincident", 4, 2, 5, 1),
    Sketcher.Constraint("Coincident", 5, 2, 6, 1),
    Sketcher.Constraint("Coincident", 6, 2, 7, 1),
    Sketcher.Constraint("Coincident", 7, 2, 4, 1),
    Sketcher.Constraint("Vertical", 0),
    Sketcher.Constraint("Horizontal", 1),
    Sketcher.Constraint("Vertical", 2),
    Sketcher.Constraint("Horizontal", 3),
    Sketcher.Constraint("Vertical", 4),
    Sketcher.Constraint("Horizontal", 5),
    Sketcher.Constraint("Vertical", 6),
    Sketcher.Constraint("Horizontal", 7),
    Sketcher.Constraint("Symmetric", 3, 2, 4, 2, -1),
    Sketcher.Constraint("Symmetric", 1, 2, 6, 2, -1),
    Sketcher.Constraint("DistanceX", 0, 2, -1, 1, 17.5),
    Sketcher.Constraint("DistanceY", 6, 2, 1, 2, 12.05),
    Sketcher.Constraint("DistanceX", 1, 1, 1, 2, 7.595754),
    Sketcher.Constraint("DistanceY", 0, 2, 0, 1, 2.860926),
])
pocket5 = body.newObject("PartDesign::Pocket", "Pocket004")
pocket5.Profile = sketch13
pocket5.Type = "ThroughAll"

sketch14 = body.newObject("Sketcher::SketchObject", "Sketch013")
sketch14.AttachmentSupport = (doc.getObject("YZ_Plane"), [""])
sketch14.MapMode = "FlatFace"
sketch14.AttachmentOffset = App.Placement(V(0, 0, -17.5), App.Rotation())
sketch14.addGeometry([
    Part.LineSegment(V(-8.9, 3, 0), V(-8.9, 0, 0)),
    Part.LineSegment(V(-8.9, 0, 0), V(-6, 0, 0)),
    Part.LineSegment(V(-6, 0, 0), V(-6, 3, 0)),
    Part.LineSegment(V(-6, 3, 0), V(-8.9, 3, 0)),
    Part.LineSegment(V(6, 3, 0), V(6, 0, 0)),
    Part.LineSegment(V(6, 0, 0), V(8.9, 0, 0)),
    Part.LineSegment(V(8.9, 0, 0), V(8.9, 3, 0)),
    Part.LineSegment(V(8.9, 3, 0), V(6, 3, 0)),
], False)
sketch14.addConstraint([
    Sketcher.Constraint("Coincident", 0, 2, 1, 1),
    Sketcher.Constraint("Coincident", 1, 2, 2, 1),
    Sketcher.Constraint("Coincident", 2, 2, 3, 1),
    Sketcher.Constraint("Coincident", 3, 2, 0, 1),
    Sketcher.Constraint("Coincident", 4, 2, 5, 1),
    Sketcher.Constraint("Coincident", 5, 2, 6, 1),
    Sketcher.Constraint("Coincident", 6, 2, 7, 1),
    Sketcher.Constraint("Coincident", 7, 2, 4, 1),
    Sketcher.Constraint("Vertical", 0),
    Sketcher.Constraint("Horizontal", 1),
    Sketcher.Constraint("Vertical", 2),
    Sketcher.Constraint("Horizontal", 3),
    Sketcher.Constraint("Vertical", 4),
    Sketcher.Constraint("Horizontal", 5),
    Sketcher.Constraint("Vertical", 6),
    Sketcher.Constraint("Horizontal", 7),
    Sketcher.Constraint("Symmetric", 1, 2, 4, 2, -1, 1),
    Sketcher.Constraint("Symmetric", 0, 2, 5, 2, -2),
    Sketcher.Constraint("Horizontal", 3, 2, 6, 2),
    Sketcher.Constraint("DistanceY", 0, 2, 0, 1, 3.0),
    Sketcher.Constraint("DistanceX", 1, 2, 4, 2, 12.05),
    Sketcher.Constraint("DistanceX", 1, 1, 1, 2, 2.860926),
])
sketch14.setExpression("Constraints[19]", "Params.sketch14_height")
pocket6 = body.newObject("PartDesign::Pocket", "Pocket005")
pocket6.Profile = sketch14
pocket6.Type = "ThroughAll"

doc.recompute()
